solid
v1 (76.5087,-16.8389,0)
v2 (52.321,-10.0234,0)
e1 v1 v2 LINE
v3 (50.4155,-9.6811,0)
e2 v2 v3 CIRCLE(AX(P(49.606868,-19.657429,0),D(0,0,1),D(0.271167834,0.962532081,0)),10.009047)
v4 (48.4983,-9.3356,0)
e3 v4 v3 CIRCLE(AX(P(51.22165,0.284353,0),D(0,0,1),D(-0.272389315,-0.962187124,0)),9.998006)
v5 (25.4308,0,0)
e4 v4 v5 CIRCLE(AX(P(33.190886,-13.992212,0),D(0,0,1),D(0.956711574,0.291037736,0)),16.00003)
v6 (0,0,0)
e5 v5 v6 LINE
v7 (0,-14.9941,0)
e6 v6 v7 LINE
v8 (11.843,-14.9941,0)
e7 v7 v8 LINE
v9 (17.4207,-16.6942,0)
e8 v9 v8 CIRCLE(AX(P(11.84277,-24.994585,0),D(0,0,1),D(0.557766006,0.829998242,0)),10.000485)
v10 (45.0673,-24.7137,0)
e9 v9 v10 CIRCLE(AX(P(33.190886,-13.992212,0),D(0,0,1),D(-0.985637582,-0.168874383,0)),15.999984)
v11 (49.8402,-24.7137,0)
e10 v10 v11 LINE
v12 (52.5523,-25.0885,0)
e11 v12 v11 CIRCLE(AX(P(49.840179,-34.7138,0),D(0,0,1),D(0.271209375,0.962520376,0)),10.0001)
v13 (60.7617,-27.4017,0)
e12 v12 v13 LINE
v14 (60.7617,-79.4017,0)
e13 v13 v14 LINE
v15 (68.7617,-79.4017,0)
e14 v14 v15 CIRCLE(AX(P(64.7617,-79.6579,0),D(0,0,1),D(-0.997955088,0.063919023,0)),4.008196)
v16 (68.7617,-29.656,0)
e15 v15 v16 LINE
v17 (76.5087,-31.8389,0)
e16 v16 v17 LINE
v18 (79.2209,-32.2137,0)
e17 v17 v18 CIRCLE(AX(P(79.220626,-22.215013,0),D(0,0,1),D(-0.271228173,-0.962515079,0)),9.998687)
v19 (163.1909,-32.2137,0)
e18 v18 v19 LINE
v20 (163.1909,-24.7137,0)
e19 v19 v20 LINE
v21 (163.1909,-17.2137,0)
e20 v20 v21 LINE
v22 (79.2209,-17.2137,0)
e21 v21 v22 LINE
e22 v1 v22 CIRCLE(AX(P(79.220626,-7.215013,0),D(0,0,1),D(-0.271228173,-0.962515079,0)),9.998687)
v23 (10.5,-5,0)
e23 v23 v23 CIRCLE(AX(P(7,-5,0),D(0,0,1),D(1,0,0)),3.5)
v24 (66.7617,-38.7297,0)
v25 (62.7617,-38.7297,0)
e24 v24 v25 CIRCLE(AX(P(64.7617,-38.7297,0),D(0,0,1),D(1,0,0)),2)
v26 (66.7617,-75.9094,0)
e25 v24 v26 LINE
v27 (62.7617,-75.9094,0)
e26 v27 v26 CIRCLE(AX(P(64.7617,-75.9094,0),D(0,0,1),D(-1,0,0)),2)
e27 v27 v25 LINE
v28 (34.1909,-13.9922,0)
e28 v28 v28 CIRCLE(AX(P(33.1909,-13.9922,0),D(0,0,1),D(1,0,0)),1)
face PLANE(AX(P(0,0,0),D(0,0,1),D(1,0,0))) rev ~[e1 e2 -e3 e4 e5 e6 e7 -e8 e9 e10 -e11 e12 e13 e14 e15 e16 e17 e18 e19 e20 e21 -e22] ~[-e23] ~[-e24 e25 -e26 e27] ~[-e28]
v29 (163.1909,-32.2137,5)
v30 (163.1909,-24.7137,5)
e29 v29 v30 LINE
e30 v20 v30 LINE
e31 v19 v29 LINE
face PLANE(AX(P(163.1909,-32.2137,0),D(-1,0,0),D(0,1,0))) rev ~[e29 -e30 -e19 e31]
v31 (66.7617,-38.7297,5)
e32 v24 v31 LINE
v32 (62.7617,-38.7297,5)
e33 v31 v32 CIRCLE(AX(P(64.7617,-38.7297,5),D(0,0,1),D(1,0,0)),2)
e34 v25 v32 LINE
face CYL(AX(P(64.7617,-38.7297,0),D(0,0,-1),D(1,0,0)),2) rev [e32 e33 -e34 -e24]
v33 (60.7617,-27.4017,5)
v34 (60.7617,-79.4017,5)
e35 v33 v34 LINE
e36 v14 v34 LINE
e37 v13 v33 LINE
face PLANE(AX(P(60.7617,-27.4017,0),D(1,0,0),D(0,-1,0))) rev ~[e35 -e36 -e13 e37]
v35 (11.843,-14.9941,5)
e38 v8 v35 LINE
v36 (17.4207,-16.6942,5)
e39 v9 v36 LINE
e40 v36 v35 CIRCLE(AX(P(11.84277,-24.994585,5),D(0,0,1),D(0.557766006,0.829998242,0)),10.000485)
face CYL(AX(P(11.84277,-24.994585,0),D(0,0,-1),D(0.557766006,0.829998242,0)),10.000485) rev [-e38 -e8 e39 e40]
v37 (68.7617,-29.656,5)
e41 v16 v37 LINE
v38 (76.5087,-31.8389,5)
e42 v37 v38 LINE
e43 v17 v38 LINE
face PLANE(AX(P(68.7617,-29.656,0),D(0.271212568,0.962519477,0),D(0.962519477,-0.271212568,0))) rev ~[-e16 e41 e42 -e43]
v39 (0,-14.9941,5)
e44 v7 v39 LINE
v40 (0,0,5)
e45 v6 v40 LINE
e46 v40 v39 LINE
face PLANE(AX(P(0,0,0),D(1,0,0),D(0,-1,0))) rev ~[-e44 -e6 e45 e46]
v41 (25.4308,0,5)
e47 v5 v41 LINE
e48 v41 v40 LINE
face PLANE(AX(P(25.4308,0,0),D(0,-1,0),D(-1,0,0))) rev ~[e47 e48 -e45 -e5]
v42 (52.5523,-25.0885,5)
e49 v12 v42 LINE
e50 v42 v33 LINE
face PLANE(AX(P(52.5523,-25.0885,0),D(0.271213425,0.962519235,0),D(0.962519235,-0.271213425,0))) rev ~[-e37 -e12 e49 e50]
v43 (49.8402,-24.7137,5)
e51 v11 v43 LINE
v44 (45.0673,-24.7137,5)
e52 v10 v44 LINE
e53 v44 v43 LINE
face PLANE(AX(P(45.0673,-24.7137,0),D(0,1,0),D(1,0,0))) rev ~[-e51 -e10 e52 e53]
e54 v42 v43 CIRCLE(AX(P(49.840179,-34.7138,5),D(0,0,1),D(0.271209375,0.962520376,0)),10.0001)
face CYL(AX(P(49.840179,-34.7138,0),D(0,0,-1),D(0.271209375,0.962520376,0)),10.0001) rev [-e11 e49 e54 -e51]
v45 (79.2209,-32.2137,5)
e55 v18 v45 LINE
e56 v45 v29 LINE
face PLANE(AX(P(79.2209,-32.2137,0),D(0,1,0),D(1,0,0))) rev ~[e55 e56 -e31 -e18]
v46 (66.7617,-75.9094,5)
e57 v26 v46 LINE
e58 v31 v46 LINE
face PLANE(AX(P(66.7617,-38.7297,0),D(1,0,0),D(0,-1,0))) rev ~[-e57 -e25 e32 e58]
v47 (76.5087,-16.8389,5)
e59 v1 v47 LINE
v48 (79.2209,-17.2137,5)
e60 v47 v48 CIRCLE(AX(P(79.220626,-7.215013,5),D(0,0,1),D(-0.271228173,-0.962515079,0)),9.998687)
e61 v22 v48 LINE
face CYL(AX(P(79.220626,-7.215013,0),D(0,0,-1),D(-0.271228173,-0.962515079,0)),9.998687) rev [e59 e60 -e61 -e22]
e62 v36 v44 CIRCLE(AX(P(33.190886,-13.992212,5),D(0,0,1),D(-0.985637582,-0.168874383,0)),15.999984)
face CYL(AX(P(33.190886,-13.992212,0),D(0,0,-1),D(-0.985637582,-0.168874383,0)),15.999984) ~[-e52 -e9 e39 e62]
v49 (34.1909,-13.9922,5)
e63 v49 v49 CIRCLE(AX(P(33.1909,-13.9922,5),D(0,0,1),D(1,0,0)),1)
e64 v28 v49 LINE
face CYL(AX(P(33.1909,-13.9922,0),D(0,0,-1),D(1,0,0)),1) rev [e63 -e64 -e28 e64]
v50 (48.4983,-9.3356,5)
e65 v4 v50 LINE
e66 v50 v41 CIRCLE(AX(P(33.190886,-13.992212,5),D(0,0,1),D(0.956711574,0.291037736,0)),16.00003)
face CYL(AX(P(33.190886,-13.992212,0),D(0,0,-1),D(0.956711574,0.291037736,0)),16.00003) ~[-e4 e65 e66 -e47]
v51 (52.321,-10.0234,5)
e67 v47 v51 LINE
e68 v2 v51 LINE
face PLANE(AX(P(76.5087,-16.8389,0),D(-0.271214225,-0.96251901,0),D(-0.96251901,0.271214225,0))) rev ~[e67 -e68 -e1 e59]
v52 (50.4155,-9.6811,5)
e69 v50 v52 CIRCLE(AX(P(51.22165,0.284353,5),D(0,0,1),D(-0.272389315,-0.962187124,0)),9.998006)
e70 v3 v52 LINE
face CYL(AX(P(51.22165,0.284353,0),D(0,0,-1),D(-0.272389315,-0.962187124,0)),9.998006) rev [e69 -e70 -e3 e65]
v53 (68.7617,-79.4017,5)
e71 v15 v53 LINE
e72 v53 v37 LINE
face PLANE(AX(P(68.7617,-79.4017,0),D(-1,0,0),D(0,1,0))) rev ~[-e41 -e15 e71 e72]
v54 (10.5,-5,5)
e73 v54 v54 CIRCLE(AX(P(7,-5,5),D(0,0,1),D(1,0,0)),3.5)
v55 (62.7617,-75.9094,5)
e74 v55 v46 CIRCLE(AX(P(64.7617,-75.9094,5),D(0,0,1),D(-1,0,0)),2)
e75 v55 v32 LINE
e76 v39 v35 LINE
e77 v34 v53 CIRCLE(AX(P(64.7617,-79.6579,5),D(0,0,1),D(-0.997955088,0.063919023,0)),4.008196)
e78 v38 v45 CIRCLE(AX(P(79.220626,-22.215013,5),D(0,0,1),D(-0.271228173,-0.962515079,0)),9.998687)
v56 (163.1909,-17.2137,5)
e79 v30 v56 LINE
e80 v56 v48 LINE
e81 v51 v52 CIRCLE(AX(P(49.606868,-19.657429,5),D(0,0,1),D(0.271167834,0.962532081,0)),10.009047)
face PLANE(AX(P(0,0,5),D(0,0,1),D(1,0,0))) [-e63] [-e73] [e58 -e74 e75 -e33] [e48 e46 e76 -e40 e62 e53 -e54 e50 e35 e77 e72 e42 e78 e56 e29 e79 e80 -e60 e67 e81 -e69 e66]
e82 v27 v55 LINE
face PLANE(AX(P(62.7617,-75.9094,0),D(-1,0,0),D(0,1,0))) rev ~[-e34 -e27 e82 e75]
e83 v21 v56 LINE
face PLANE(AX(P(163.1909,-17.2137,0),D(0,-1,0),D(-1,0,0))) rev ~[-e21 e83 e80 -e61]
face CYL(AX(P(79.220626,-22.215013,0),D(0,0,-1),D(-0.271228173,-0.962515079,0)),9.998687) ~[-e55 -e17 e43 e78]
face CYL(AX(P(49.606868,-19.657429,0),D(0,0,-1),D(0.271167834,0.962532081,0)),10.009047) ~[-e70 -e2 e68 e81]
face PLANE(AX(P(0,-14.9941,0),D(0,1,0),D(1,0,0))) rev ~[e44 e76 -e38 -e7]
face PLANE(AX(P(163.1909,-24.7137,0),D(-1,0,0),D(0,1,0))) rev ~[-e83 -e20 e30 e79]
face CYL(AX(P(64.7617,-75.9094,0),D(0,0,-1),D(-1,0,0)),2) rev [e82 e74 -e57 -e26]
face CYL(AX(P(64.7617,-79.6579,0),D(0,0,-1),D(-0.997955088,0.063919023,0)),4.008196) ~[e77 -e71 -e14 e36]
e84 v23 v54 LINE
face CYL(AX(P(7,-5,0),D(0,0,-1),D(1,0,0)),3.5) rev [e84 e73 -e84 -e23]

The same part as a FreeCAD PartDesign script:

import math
import FreeCAD as App
import Part
import Sketcher

V = App.Vector

doc = App.newDocument("Part")
body = doc.addObject("PartDesign::Body", "Body")

sketch1 = body.newObject("Sketcher::SketchObject", "Sketch")
sketch1.AttachmentSupport = (doc.getObject("XY_Plane"), [""])
sketch1.MapMode = "FlatFace"
sketch1.addGeometry([
    Part.LineSegment(V(163.2, -32.2, 0), V(163.2, -17.2, 0)),
    Part.LineSegment(V(163.2, -17.2, 0), V(79.2, -17.2, 0)),
    Part.ArcOfCircle(Part.Circle(V(79.2, -7.2, 0), V(0, 0, 1), 10), math.radians(-105.74), math.radians(-90)),
    Part.LineSegment(V(76.5, -16.8, 0), V(52.3, -10, 0)),
    Part.ArcOfCircle(Part.Circle(V(49.6, -19.7, 0), V(0, 0, 1), 10), math.radians(74.27), math.radians(85.37)),
    Part.ArcOfCircle(Part.Circle(V(51.2, 0.3, 0), V(0, 0, 1), 10), math.radians(-105.81), math.radians(-94.62)),
    Part.ArcOfCircle(Part.Circle(V(33.2, -14, 0), V(0, 0, 1), 16), math.radians(17), math.radians(119)),
    Part.LineSegment(V(25.4, 0, 0), V(0, 0, 0)),
    Part.LineSegment(V(0, 0, 0), V(0, -15, 0)),
    Part.LineSegment(V(0, -15, 0), V(11.8, -15, 0)),
    Part.ArcOfCircle(Part.Circle(V(11.8, -25, 0), V(0, 0, 1), 10), math.radians(56), math.radians(90)),
    Part.ArcOfCircle(Part.Circle(V(33.2, -14, 0), V(0, 0, 1), 16), math.radians(-170), math.radians(-42)),
    Part.LineSegment(V(45.1, -24.7, 0), V(49.8, -24.7, 0)),
    Part.ArcOfCircle(Part.Circle(V(49.8, -34.7, 0), V(0, 0, 1), 10), math.radians(74.26), math.radians(90)),
    Part.LineSegment(V(52.6, -25.1, 0), V(60.8, -27.4, 0)),
    Part.LineSegment(V(60.8, -27.4, 0), V(60.8, -79.4, 0)),
    Part.ArcOfCircle(Part.Circle(V(64.8, -79.7, 0), V(0, 0, 1), 4), math.radians(176), math.radians(364)),
    Part.LineSegment(V(68.8, -79.4, 0), V(68.8, -29.7, 0)),
    Part.LineSegment(V(68.8, -29.7, 0), V(76.5, -31.8, 0)),
    Part.ArcOfCircle(Part.Circle(V(79.2, -22.2, 0), V(0, 0, 1), 10), math.radians(-105.74), math.radians(-90)),
    Part.LineSegment(V(79.2, -32.2, 0), V(163.2, -32.2, 0)),
    Part.ArcOfCircle(Part.Circle(V(64.8, -38.7, 0), V(0, 0, 1), 2), math.radians(0), math.radians(180)),
    Part.LineSegment(V(66.8, -38.7, 0), V(66.8, -75.9, 0)),
    Part.ArcOfCircle(Part.Circle(V(64.8, -75.9, 0), V(0, 0, 1), 2), math.radians(180), math.radians(360)),
    Part.LineSegment(V(62.8, -75.9, 0), V(62.8, -38.7, 0)),
    Part.Circle(V(33.2, -14, 0), V(0, 0, 1), 1),
    Part.Circle(V(7, -5, 0), V(0, 0, 1), 3.5),
], False)
sketch1.addConstraint([
    Sketcher.Constraint("Coincident", 0, 2, 1, 1),
    Sketcher.Constraint("Tangent", 1, 2, 2, 2),
    Sketcher.Constraint("Tangent", 2, 1, 3, 1),
    Sketcher.Constraint("Tangent", 3, 2, 4, 1),
    Sketcher.Constraint("Tangent", 4, 2, 5, 2),
    Sketcher.Constraint("Coincident", 5, 1, 6, 1),
    Sketcher.Constraint("Coincident", 6, 2, 7, 1),
    Sketcher.Constraint("Coincident", 7, 2, 8, 1),
    Sketcher.Constraint("Coincident", 8, 2, 9, 1),
    Sketcher.Constraint("Tangent", 9, 2, 10, 2),
    Sketcher.Constraint("Coincident", 10, 1, 11, 1),
    Sketcher.Constraint("Coincident", 11, 2, 12, 1),
    Sketcher.Constraint("Tangent", 12, 2, 13, 2),
    Sketcher.Constraint("Tangent", 13, 1, 14, 1),
    Sketcher.Constraint("Coincident", 14, 2, 15, 1),
    Sketcher.Constraint("Coincident", 15, 2, 16, 1),
    Sketcher.Constraint("Coincident", 16, 2, 17, 1),
    Sketcher.Constraint("Coincident", 17, 2, 18, 1),
    Sketcher.Constraint("Tangent", 18, 2, 19, 1),
    Sketcher.Constraint("Tangent", 19, 2, 20, 1),
    Sketcher.Constraint("Coincident", 20, 2, 0, 1),
    Sketcher.Constraint("Tangent", 21, 1, 22, 1),
    Sketcher.Constraint("Tangent", 22, 2, 23, 2),
    Sketcher.Constraint("Tangent", 23, 1, 24, 1),
    Sketcher.Constraint("Tangent", 24, 2, 21, 2),
    Sketcher.Constraint("Vertical", 0),
    Sketcher.Constraint("Horizontal", 1),
    Sketcher.Constraint("Horizontal", 7),
    Sketcher.Constraint("Vertical", 8),
    Sketcher.Constraint("Horizontal", 9),
    Sketcher.Constraint("Horizontal", 12),
    Sketcher.Constraint("Vertical", 15),
    Sketcher.Constraint("Vertical", 17),
    Sketcher.Constraint("Horizontal", 20),
    Sketcher.Constraint("Vertical", 22),
    Sketcher.Constraint("Vertical", 24),
    Sketcher.Constraint("Coincident", 7, 2, -1, 1),
    Sketcher.Constraint("Coincident", 11, 3, 6, 3),
    Sketcher.Constraint("Coincident", 25, 3, 6, 3),
    Sketcher.Constraint("Equal", 6, 11),
    Sketcher.Constraint("Equal", 10, 13),
    Sketcher.Constraint("Equal", 2, 19),
    Sketcher.Constraint("Parallel", 3, 14),
    Sketcher.Constraint("Parallel", 14, 18),
    Sketcher.Constraint("Horizontal", 15, 2, 16, 2),
    Sketcher.Constraint("Vertical", 2, 3, 19, 3),
    Sketcher.Constraint("Vertical", 16, 3, 21, 3),
    Sketcher.Constraint("Diameter", 25, 2.0),
    Sketcher.Constraint("Radius", 21, 2.0),
    Sketcher.Constraint("Diameter", 26, 7.0),
    Sketcher.Constraint("Radius", 6, 16.0),
    Sketcher.Constraint("Radius", 10, 10.0),
    Sketcher.Constraint("DistanceX", 21, 1, 17, 2, 2.0),
    Sketcher.Constraint("DistanceY", 0, 1, 0, 2, 15.0),
    Sketcher.Constraint("DistanceY", 15, 2, 15, 1, 52.0),
    Sketcher.Constraint("DistanceX", -1, 1, 26, 3, 7.0),
    Sketcher.Constraint("DistanceY", 26, 3, -1, 1, 5.0),
    Sketcher.Constraint("Radius", 4, 10.009),
    Sketcher.Constraint("Radius", 5, 9.998),
    Sketcher.Constraint("DistanceX", 1, 2, 1, 1, 83.97),
    Sketcher.Constraint("Radius", 2, 9.9987),
    Sketcher.Constraint("Radius", 16, 4.0082),
    Sketcher.Constraint("DistanceY", 10, 1, 9, 2, 1.7),
    Sketcher.Constraint("DistanceX", 9, 1, 9, 2, 11.843),
    Sketcher.Constraint("DistanceX", 12, 1, 12, 2, 4.773),
    Sketcher.Constraint("DistanceY", 8, 2, 8, 1, 14.994),
    Sketcher.Constraint("DistanceX", 6, 3, 3, 2, 19.13),
    Sketcher.Constraint("DistanceY", 5, 1, 5, 3, 9.62),
    Sketcher.Constraint("DistanceX", 6, 2, 6, 3, 7.76),
    Sketcher.Constraint("Distance", 14, 8.529),
    Sketcher.Constraint("DistanceY", 17, 1, 17, 2, 49.7457),
    Sketcher.Constraint("DistanceY", 22, 2, 22, 1, 37.1797),
    Sketcher.Constraint("DistanceY", 2, 3, -1, 1, 7.215),
    Sketcher.Constraint("DistanceY", 16, 3, -1, 1, 79.658),
    Sketcher.Constraint("DistanceX", -1, 1, 0, 2, 163.191),
    Sketcher.Constraint("DistanceY", 21, 3, 13, 3, 4.016),
])
pad1 = body.newObject("PartDesign::Pad", "Pad")
pad1.Profile = sketch1
pad1.Length = 5

doc.recompute()
